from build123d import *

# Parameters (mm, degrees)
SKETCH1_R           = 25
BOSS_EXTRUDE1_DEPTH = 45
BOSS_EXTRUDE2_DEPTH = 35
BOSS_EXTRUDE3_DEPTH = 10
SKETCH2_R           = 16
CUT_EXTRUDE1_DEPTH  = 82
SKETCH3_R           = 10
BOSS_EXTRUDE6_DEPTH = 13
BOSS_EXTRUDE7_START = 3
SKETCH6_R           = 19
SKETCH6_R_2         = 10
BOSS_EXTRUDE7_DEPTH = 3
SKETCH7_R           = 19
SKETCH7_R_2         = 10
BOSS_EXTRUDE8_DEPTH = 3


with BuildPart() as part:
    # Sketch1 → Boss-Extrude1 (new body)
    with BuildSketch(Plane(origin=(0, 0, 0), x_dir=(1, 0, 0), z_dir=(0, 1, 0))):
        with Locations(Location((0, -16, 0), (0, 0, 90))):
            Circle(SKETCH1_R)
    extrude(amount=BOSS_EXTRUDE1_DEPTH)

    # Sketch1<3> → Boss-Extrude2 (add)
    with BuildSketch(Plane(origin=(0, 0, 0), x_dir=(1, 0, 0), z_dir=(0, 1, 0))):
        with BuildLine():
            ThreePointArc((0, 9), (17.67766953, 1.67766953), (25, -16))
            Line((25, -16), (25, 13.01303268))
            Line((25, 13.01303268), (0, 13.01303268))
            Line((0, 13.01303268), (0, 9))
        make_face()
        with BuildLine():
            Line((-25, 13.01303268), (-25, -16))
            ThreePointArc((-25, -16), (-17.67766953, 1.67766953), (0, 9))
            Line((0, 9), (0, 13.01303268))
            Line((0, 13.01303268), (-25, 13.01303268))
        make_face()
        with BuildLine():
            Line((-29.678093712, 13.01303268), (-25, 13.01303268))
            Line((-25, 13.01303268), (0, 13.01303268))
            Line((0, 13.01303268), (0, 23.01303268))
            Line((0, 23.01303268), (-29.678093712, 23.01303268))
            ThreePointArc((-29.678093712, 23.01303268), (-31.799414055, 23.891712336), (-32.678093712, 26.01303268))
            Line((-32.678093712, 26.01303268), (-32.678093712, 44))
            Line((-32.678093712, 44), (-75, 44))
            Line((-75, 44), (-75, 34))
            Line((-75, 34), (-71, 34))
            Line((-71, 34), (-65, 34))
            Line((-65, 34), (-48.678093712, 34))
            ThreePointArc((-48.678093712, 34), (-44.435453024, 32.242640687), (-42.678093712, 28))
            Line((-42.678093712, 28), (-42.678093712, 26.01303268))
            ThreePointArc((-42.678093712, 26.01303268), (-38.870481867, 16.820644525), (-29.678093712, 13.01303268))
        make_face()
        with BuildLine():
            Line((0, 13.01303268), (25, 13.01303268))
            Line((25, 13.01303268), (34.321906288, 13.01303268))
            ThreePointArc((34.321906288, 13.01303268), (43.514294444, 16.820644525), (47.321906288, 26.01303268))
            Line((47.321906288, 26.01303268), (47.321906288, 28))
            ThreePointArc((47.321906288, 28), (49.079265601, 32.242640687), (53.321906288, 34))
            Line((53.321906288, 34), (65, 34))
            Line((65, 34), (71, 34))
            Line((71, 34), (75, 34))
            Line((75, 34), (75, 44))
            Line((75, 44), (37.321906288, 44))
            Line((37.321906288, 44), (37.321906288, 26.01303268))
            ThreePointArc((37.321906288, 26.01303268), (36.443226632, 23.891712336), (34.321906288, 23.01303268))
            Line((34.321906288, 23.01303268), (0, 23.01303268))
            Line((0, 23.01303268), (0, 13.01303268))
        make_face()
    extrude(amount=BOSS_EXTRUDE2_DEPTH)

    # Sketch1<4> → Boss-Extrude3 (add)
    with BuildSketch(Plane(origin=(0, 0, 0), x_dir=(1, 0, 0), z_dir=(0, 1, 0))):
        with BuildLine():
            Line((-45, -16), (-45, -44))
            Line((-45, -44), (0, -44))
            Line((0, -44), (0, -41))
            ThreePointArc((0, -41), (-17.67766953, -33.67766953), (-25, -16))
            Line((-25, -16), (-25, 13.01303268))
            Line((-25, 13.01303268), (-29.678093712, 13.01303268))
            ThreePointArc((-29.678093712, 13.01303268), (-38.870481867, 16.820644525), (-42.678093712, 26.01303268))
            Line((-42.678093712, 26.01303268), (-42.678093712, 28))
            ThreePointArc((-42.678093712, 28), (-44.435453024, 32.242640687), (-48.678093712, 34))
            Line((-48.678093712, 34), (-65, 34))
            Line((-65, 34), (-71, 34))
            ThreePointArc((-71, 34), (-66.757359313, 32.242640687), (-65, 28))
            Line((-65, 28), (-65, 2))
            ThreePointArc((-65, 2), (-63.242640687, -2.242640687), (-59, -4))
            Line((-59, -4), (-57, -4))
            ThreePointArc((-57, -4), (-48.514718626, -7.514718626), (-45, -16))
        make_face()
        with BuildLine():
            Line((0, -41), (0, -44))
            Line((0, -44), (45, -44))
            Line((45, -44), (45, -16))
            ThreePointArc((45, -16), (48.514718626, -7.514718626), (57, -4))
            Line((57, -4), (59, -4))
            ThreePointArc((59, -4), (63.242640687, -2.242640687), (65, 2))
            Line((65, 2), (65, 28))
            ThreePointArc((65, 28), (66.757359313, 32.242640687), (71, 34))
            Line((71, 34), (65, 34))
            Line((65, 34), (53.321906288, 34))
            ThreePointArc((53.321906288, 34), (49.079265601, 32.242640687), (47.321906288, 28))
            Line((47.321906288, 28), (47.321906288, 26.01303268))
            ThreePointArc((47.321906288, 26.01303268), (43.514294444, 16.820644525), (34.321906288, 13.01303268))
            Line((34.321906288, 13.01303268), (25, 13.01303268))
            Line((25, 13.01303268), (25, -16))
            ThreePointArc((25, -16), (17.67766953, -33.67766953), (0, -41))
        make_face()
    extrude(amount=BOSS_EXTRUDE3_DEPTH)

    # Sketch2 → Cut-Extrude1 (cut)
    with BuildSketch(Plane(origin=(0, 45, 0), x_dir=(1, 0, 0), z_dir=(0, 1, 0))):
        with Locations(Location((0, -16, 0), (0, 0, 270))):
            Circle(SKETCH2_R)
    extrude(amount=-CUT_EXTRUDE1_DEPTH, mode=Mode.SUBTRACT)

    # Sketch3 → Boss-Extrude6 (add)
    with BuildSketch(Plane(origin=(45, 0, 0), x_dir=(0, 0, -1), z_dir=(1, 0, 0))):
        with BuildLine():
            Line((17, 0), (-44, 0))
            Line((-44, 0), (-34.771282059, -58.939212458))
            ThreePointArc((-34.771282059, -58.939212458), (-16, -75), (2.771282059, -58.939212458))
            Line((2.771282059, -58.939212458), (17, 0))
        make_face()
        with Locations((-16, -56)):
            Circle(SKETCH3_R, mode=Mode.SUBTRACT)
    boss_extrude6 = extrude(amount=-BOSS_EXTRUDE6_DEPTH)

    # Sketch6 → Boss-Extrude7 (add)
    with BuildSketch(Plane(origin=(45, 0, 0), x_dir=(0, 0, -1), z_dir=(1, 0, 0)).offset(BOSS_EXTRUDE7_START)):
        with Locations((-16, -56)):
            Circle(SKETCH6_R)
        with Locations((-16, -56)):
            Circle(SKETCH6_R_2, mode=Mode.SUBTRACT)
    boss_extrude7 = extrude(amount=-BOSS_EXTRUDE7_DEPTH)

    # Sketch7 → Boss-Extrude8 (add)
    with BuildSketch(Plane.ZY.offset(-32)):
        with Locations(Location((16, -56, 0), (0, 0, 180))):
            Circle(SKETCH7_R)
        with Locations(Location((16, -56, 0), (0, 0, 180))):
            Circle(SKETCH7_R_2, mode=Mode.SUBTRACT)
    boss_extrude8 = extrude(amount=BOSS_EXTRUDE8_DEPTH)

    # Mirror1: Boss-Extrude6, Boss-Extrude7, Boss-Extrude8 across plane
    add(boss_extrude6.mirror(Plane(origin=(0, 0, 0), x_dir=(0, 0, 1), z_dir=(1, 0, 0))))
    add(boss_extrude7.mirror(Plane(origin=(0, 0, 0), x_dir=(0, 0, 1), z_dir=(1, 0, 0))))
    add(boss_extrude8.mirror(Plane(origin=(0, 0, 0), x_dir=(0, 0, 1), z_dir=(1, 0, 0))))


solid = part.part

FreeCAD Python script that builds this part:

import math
import FreeCAD as App
import Part
import Sketcher

V = App.Vector
Q = App.Units.Quantity

doc = App.newDocument("Part")
body = doc.addObject("PartDesign::Body", "Body")

# Sketch on XZ plane
sketch1 = doc.addObject("Sketcher::SketchObject", "Sketch")
body.addObject(sketch1)
sketch1.AttachmentSupport = (doc.XZ_Plane, [""])
sketch1.MapMode = "FlatFace"
sketch1.addGeometry(Part.Circle(V(0, 16, 0), V(0, 0, 1), 25), False)
sketch1.addConstraint([
    Sketcher.Constraint("PointOnObject", 0, 3, -2),
    Sketcher.Constraint("Diameter", 0, Q("50 mm")),
    Sketcher.Constraint("DistanceY", -1, 1, 0, 3, Q("16 mm")),
])
pad1 = doc.addObject("PartDesign::Pad", "Pad")
body.addObject(pad1)
pad1.Profile = sketch1
pad1.Length = 45
pad1.Reversed = True

# Sketch on XZ plane
sketch2 = doc.addObject("Sketcher::SketchObject", "Sketch001")
body.addObject(sketch2)
sketch2.AttachmentSupport = (doc.XZ_Plane, [""])
sketch2.MapMode = "FlatFace"
sketch2.addGeometry([
    Part.ArcOfCircle(Part.Circle(V(0, 16, 0), V(0, 0, 1), 25), math.radians(-90), math.radians(0)),  # 0
    Part.LineSegment(V(25, 16, 0), V(25, -13.013033, 0)),  # 1
    Part.LineSegment(V(25, -13.013033, 0), V(34.321906, -13.013033, 0)),  # 2
    Part.ArcOfCircle(Part.Circle(V(34.321906, -26.013033, 0), V(0, 0, 1), 13), math.radians(0), math.radians(90)),  # 3
    Part.LineSegment(V(47.321906, -26.013033, 0), V(47.321906, -28, 0)),  # 4
    Part.ArcOfCircle(Part.Circle(V(53.321906, -28, 0), V(0, 0, 1), 6), math.radians(180), math.radians(270)),  # 5
    Part.LineSegment(V(53.321906, -34, 0), V(75, -34, 0)),  # 6
    Part.LineSegment(V(75, -34, 0), V(75, -44, 0)),  # 7
    Part.LineSegment(V(75, -44, 0), V(37.321906, -44, 0)),  # 8
    Part.LineSegment(V(37.321906, -44, 0), V(37.321906, -26.013033, 0)),  # 9
    Part.ArcOfCircle(Part.Circle(V(34.321906, -26.013033, 0), V(0, 0, 1), 3), math.radians(0), math.radians(90)),  # 10
    Part.LineSegment(V(34.321906, -23.013033, 0), V(-29.678094, -23.013033, 0)),  # 11
    Part.ArcOfCircle(Part.Circle(V(-29.678094, -26.013033, 0), V(0, 0, 1), 3), math.radians(90), math.radians(180)),  # 12
    Part.LineSegment(V(-32.678094, -26.013033, 0), V(-32.678094, -44, 0)),  # 13
    Part.LineSegment(V(-32.678094, -44, 0), V(-75, -44, 0)),  # 14
    Part.LineSegment(V(-75, -44, 0), V(-75, -34, 0)),  # 15
    Part.LineSegment(V(-75, -34, 0), V(-48.678094, -34, 0)),  # 16
    Part.ArcOfCircle(Part.Circle(V(-48.678094, -28, 0), V(0, 0, 1), 6), math.radians(-90), math.radians(0)),  # 17
    Part.LineSegment(V(-42.678094, -28, 0), V(-42.678094, -26.013033, 0)),  # 18
    Part.ArcOfCircle(Part.Circle(V(-29.678094, -26.013033, 0), V(0, 0, 1), 13), math.radians(90), math.radians(180)),  # 19
    Part.LineSegment(V(-29.678094, -13.013033, 0), V(-25, -13.013033, 0)),  # 20
    Part.LineSegment(V(-25, -13.013033, 0), V(-25, 16, 0)),  # 21
    Part.ArcOfCircle(Part.Circle(V(0, 16, 0), V(0, 0, 1), 25), math.radians(180), math.radians(270)),  # 22
], False)
sketch2.addConstraint([
    Sketcher.Constraint("Tangent", 0, 2, 1, 1),
    Sketcher.Constraint("Coincident", 1, 2, 2, 1),
    Sketcher.Constraint("Tangent", 2, 2, 3, 2),
    Sketcher.Constraint("Tangent", 3, 1, 4, 1),
    Sketcher.Constraint("Tangent", 4, 2, 5, 1),
    Sketcher.Constraint("Tangent", 5, 2, 6, 1),
    Sketcher.Constraint("Coincident", 6, 2, 7, 1),
    Sketcher.Constraint("Coincident", 7, 2, 8, 1),
    Sketcher.Constraint("Coincident", 8, 2, 9, 1),
    Sketcher.Constraint("Tangent", 9, 2, 10, 1),
    Sketcher.Constraint("Tangent", 10, 2, 11, 1),
    Sketcher.Constraint("Tangent", 11, 2, 12, 1),
    Sketcher.Constraint("Tangent", 12, 2, 13, 1),
    Sketcher.Constraint("Coincident", 13, 2, 14, 1),
    Sketcher.Constraint("Coincident", 14, 2, 15, 1),
    Sketcher.Constraint("Coincident", 15, 2, 16, 1),
    Sketcher.Constraint("Tangent", 16, 2, 17, 1),
    Sketcher.Constraint("Tangent", 17, 2, 18, 1),
    Sketcher.Constraint("Tangent", 18, 2, 19, 2),
    Sketcher.Constraint("Tangent", 19, 1, 20, 1),
    Sketcher.Constraint("Coincident", 20, 2, 21, 1),
    Sketcher.Constraint("Tangent", 21, 2, 22, 1),
    Sketcher.Constraint("Tangent", 22, 2, 0, 1),
    Sketcher.Constraint("Vertical", 1),
    Sketcher.Constraint("Horizontal", 2),
    Sketcher.Constraint("Vertical", 4),
    Sketcher.Constraint("Horizontal", 6),
    Sketcher.Constraint("Vertical", 7),
    Sketcher.Constraint("Horizontal", 8),
    Sketcher.Constraint("Vertical", 9),
    Sketcher.Constraint("Horizontal", 11),
    Sketcher.Constraint("Vertical", 13),
    Sketcher.Constraint("Horizontal", 14),
    Sketcher.Constraint("Vertical", 15),
    Sketcher.Constraint("Horizontal", 16),
    Sketcher.Constraint("Vertical", 18),
    Sketcher.Constraint("Horizontal", 20),
    Sketcher.Constraint("Vertical", 21),
    Sketcher.Constraint("Coincident", 10, 3, 3, 3),
    Sketcher.Constraint("Coincident", 19, 3, 12, 3),
    Sketcher.Constraint("Equal", 10, 12),
    Sketcher.Constraint("Equal", 5, 17),
    Sketcher.Constraint("Equal", 3, 19),
    Sketcher.Constraint("Equal", 0, 22),
    Sketcher.Constraint("Symmetric", 7, 2, 14, 2, -2),
    Sketcher.Constraint("PointOnObject", 0, 3, -2),
    Sketcher.Constraint("PointOnObject", 22, 2, -2),
    Sketcher.Constraint("Horizontal", 5, 3, 17, 3),
    Sketcher.Constraint("Radius", 0, Q("25 mm")),
    Sketcher.Constraint("Radius", 3, Q("13 mm")),
    Sketcher.Constraint("Radius", 5, Q("6 mm")),
    Sketcher.Constraint("Radius", 10, Q("3 mm")),
    Sketcher.Constraint("DistanceX", 11, 2, 11, 1, Q("64 mm")),
    Sketcher.Constraint("DistanceY", 7, 2, 7, 1, Q("10 mm")),
    Sketcher.Constraint("DistanceY", -1, 1, 0, 3, Q("16 mm")),
    Sketcher.Constraint("DistanceY", 5, 3, -1, 1, Q("28 mm")),
    Sketcher.Constraint("DistanceX", -1, 1, 6, 2, Q("75 mm")),
    Sketcher.Constraint("DistanceX", 2, 1, 2, 2, Q("9.321906 mm")),
    Sketcher.Constraint("DistanceY", 1, 2, 1, 1, Q("29.013033 mm")),
])
pad2 = doc.addObject("PartDesign::Pad", "Pad001")
body.addObject(pad2)
pad2.Profile = sketch2
pad2.Length = 35
pad2.Reversed = True

# Sketch on XZ plane
sketch3 = doc.addObject("Sketcher::SketchObject", "Sketch002")
body.addObject(sketch3)
sketch3.AttachmentSupport = (doc.XZ_Plane, [""])
sketch3.MapMode = "FlatFace"
sketch3.addGeometry([
    Part.LineSegment(V(-45, 16, 0), V(-45, 44, 0)),  # 0
    Part.LineSegment(V(-45, 44, 0), V(45, 44, 0)),  # 1
    Part.LineSegment(V(45, 44, 0), V(45, 16, 0)),  # 2
    Part.ArcOfCircle(Part.Circle(V(57, 16, 0), V(0, 0, 1), 12), math.radians(-180), math.radians(-90)),  # 3
    Part.LineSegment(V(57, 4, 0), V(59, 4, 0)),  # 4
    Part.ArcOfCircle(Part.Circle(V(59, -2, 0), V(0, 0, 1), 6), math.radians(0), math.radians(90)),  # 5
    Part.LineSegment(V(65, -2, 0), V(65, -28, 0)),  # 6
    Part.ArcOfCircle(Part.Circle(V(71, -28, 0), V(0, 0, 1), 6), math.radians(180), math.radians(270)),  # 7
    Part.LineSegment(V(71, -34, 0), V(53.321906, -34, 0)),  # 8
    Part.ArcOfCircle(Part.Circle(V(53.321906, -28, 0), V(0, 0, 1), 6), math.radians(180), math.radians(270)),  # 9
    Part.LineSegment(V(47.321906, -28, 0), V(47.321906, -26.013033, 0)),  # 10
    Part.ArcOfCircle(Part.Circle(V(34.321906, -26.013033, 0), V(0, 0, 1), 13), math.radians(0), math.radians(90)),  # 11
    Part.LineSegment(V(34.321906, -13.013033, 0), V(25, -13.013033, 0)),  # 12
    Part.LineSegment(V(25, -13.013033, 0), V(25, 16, 0)),  # 13
    Part.ArcOfCircle(Part.Circle(V(0, 16, 0), V(0, 0, 1), 25), math.radians(0), math.radians(90)),  # 14
    Part.ArcOfCircle(Part.Circle(V(0, 16, 0), V(0, 0, 1), 25), math.radians(90), math.radians(180)),  # 15
    Part.LineSegment(V(-25, 16, 0), V(-25, -13.013033, 0)),  # 16
    Part.LineSegment(V(-25, -13.013033, 0), V(-29.678094, -13.013033, 0)),  # 17
    Part.ArcOfCircle(Part.Circle(V(-29.678094, -26.013033, 0), V(0, 0, 1), 13), math.radians(90), math.radians(180)),  # 18
    Part.LineSegment(V(-42.678094, -26.013033, 0), V(-42.678094, -28, 0)),  # 19
    Part.ArcOfCircle(Part.Circle(V(-48.678094, -28, 0), V(0, 0, 1), 6), math.radians(-90), math.radians(0)),  # 20
    Part.LineSegment(V(-48.678094, -34, 0), V(-71, -34, 0)),  # 21
    Part.ArcOfCircle(Part.Circle(V(-71, -28, 0), V(0, 0, 1), 6), math.radians(-90), math.radians(0)),  # 22
    Part.LineSegment(V(-65, -28, 0), V(-65, -2, 0)),  # 23
    Part.ArcOfCircle(Part.Circle(V(-59, -2, 0), V(0, 0, 1), 6), math.radians(90), math.radians(180)),  # 24
    Part.LineSegment(V(-59, 4, 0), V(-57, 4, 0)),  # 25
    Part.ArcOfCircle(Part.Circle(V(-57, 16, 0), V(0, 0, 1), 12), math.radians(-90), math.radians(0)),  # 26
], False)
sketch3.addConstraint([
    Sketcher.Constraint("Coincident", 0, 2, 1, 1),
    Sketcher.Constraint("Coincident", 1, 2, 2, 1),
    Sketcher.Constraint("Tangent", 2, 2, 3, 1),
    Sketcher.Constraint("Tangent", 3, 2, 4, 1),
    Sketcher.Constraint("Tangent", 4, 2, 5, 2),
    Sketcher.Constraint("Tangent", 5, 1, 6, 1),
    Sketcher.Constraint("Tangent", 6, 2, 7, 1),
    Sketcher.Constraint("Tangent", 7, 2, 8, 1),
    Sketcher.Constraint("Tangent", 8, 2, 9, 2),
    Sketcher.Constraint("Tangent", 9, 1, 10, 1),
    Sketcher.Constraint("Tangent", 10, 2, 11, 1),
    Sketcher.Constraint("Tangent", 11, 2, 12, 1),
    Sketcher.Constraint("Coincident", 12, 2, 13, 1),
    Sketcher.Constraint("Tangent", 13, 2, 14, 1),
    Sketcher.Constraint("Tangent", 14, 2, 15, 1),
    Sketcher.Constraint("Tangent", 15, 2, 16, 1),
    Sketcher.Constraint("Coincident", 16, 2, 17, 1),
    Sketcher.Constraint("Tangent", 17, 2, 18, 1),
    Sketcher.Constraint("Tangent", 18, 2, 19, 1),
    Sketcher.Constraint("Tangent", 19, 2, 20, 2),
    Sketcher.Constraint("Tangent", 20, 1, 21, 1),
    Sketcher.Constraint("Tangent", 21, 2, 22, 1),
    Sketcher.Constraint("Tangent", 22, 2, 23, 1),
    Sketcher.Constraint("Tangent", 23, 2, 24, 2),
    Sketcher.Constraint("Tangent", 24, 1, 25, 1),
    Sketcher.Constraint("Tangent", 25, 2, 26, 1),
    Sketcher.Constraint("Tangent", 26, 2, 0, 1),
    Sketcher.Constraint("Vertical", 0),
    Sketcher.Constraint("Horizontal", 1),
    Sketcher.Constraint("Vertical", 2),
    Sketcher.Constraint("Horizontal", 4),
    Sketcher.Constraint("Vertical", 6),
    Sketcher.Constraint("Horizontal", 8),
    Sketcher.Constraint("Vertical", 10),
    Sketcher.Constraint("Horizontal", 12),
    Sketcher.Constraint("Vertical", 13),
    Sketcher.Constraint("Vertical", 16),
    Sketcher.Constraint("Horizontal", 17),
    Sketcher.Constraint("Vertical", 19),
    Sketcher.Constraint("Horizontal", 21),
    Sketcher.Constraint("Vertical", 23),
    Sketcher.Constraint("Horizontal", 25),
    Sketcher.Constraint("Equal", 5, 7),
    Sketcher.Constraint("Equal", 7, 9),
    Sketcher.Constraint("Equal", 14, 15),
    Sketcher.Constraint("Equal", 11, 18),
    Sketcher.Constraint("Equal", 9, 20),
    Sketcher.Constraint("Equal", 20, 22),
    Sketcher.Constraint("Equal", 22, 24),
    Sketcher.Constraint("Equal", 3, 26),
    Sketcher.Constraint("Symmetric", 7, 3, 22, 3, -2),
    Sketcher.Constraint("Symmetric", 3, 3, 26, 3, -2),
    Sketcher.Constraint("Symmetric", 12, 2, 16, 2, -2),
    Sketcher.Constraint("PointOnObject", 14, 2, -2),
    Sketcher.Constraint("Horizontal", 3, 3, 14, 3),
    Sketcher.Constraint("Radius", 3, Q("12 mm")),
    Sketcher.Constraint("Radius", 5, Q("6 mm")),
    Sketcher.Constraint("Radius", 11, Q("13 mm")),
    Sketcher.Constraint("Radius", 14, Q("25 mm")),
    Sketcher.Constraint("DistanceX", 1, 1, 1, 2, Q("90 mm")),
    Sketcher.Constraint("DistanceX", 4, 1, 4, 2, Q("2 mm")),
    Sketcher.Constraint("DistanceY", 0, 1, 0, 2, Q("28 mm")),
    Sketcher.Constraint("DistanceY", 6, 2, 6, 1, Q("26 mm")),
    Sketcher.Constraint("DistanceY", -1, 1, 3, 3, Q("16 mm")),
    Sketcher.Constraint("DistanceX", 18, 3, 11, 3, Q("64 mm")),
    Sketcher.Constraint("DistanceX", 8, 2, 8, 1, Q("17.678094 mm")),
    Sketcher.Constraint("DistanceY", 10, 1, 10, 2, Q("1.986967 mm")),
])
pad3 = doc.addObject("PartDesign::Pad", "Pad002")
body.addObject(pad3)
pad3.Profile = sketch3
pad3.Length = 10
pad3.Reversed = True

# Sketch on XZ plane
sketch4 = doc.addObject("Sketcher::SketchObject", "Sketch003")
body.addObject(sketch4)
sketch4.AttachmentSupport = (doc.XZ_Plane, [""])
sketch4.MapMode = "FlatFace"
sketch4.AttachmentOffset = App.Placement(V(0, 0, -45), App.Rotation())
sketch4.addGeometry(Part.Circle(V(0, 16, 0), V(0, 0, 1), 16), False)
sketch4.addConstraint([
    Sketcher.Constraint("PointOnObject", 0, 3, -2),
    Sketcher.Constraint("Diameter", 0, Q("32 mm")),
    Sketcher.Constraint("DistanceY", -1, 1, 0, 3, Q("16 mm")),
])
pocket1 = doc.addObject("PartDesign::Pocket", "Pocket")
body.addObject(pocket1)
pocket1.Profile = sketch4
pocket1.Length = 82
pocket1.Reversed = True

# Sketch on YZ plane
sketch5 = doc.addObject("Sketcher::SketchObject", "Sketch004")
body.addObject(sketch5)
sketch5.AttachmentSupport = (doc.YZ_Plane, [""])
sketch5.MapMode = "FlatFace"
sketch5.AttachmentOffset = App.Placement(V(0, 0, 45), App.Rotation())
sketch5.addGeometry([
    Part.LineSegment(V(0, -17, 0), V(0, 44, 0)),  # 0
    Part.LineSegment(V(0, 44, 0), V(-58.939212, 34.771282, 0)),  # 1
    Part.ArcOfCircle(Part.Circle(V(-56, 16, 0), V(0, 0, 1), 19), math.radians(98.89913), math.radians(261.10087)),  # 2
    Part.LineSegment(V(-58.939212, -2.771282, 0), V(0, -17, 0)),  # 3
    Part.Circle(V(-56, 16, 0), V(0, 0, 1), 10),  # 4
], False)
sketch5.addConstraint([
    Sketcher.Constraint("Coincident", 0, 2, 1, 1),
    Sketcher.Constraint("Tangent", 1, 2, 2, 1),
    Sketcher.Constraint("Coincident", 2, 2, 3, 1),
    Sketcher.Constraint("Coincident", 3, 2, 0, 1),
    Sketcher.Constraint("Vertical", 0),
    Sketcher.Constraint("Coincident", 4, 3, 2, 3),
    Sketcher.Constraint("PointOnObject", 0, 2, -2),
    Sketcher.Constraint("Vertical", 1, 2, 2, 2),
    Sketcher.Constraint("Diameter", 4, Q("20 mm")),
    Sketcher.Constraint("Radius", 2, Q("19 mm")),
    Sketcher.Constraint("DistanceY", 0, 1, 0, 2, Q("61 mm")),
    Sketcher.Constraint("DistanceX", 2, 3, -1, 1, Q("56 mm")),
    Sketcher.Constraint("DistanceY", -1, 1, 2, 3, Q("16 mm")),
    Sketcher.Constraint("DistanceY", -1, 1, 0, 2, Q("44 mm")),
])
pad4 = doc.addObject("PartDesign::Pad", "Pad003")
body.addObject(pad4)
pad4.Profile = sketch5
pad4.Length = 13
pad4.Reversed = True

# Sketch on YZ plane
sketch6 = doc.addObject("Sketcher::SketchObject", "Sketch005")
body.addObject(sketch6)
sketch6.AttachmentSupport = (doc.YZ_Plane, [""])
sketch6.MapMode = "FlatFace"
sketch6.AttachmentOffset = App.Placement(V(0, 0, 48), App.Rotation())
sketch6.addGeometry([
    Part.Circle(V(-56, 16, 0), V(0, 0, 1), 19),
    Part.Circle(V(-56, 16, 0), V(0, 0, 1), 10),
], False)
sketch6.addConstraint([
    Sketcher.Constraint("Coincident", 1, 3, 0, 3),
    Sketcher.Constraint("Diameter", 0, Q("38 mm")),
    Sketcher.Constraint("Diameter", 1, Q("20 mm")),
    Sketcher.Constraint("DistanceX", 0, 3, -1, 1, Q("56 mm")),
    Sketcher.Constraint("DistanceY", -1, 1, 0, 3, Q("16 mm")),
])
pad5 = doc.addObject("PartDesign::Pad", "Pad004")
body.addObject(pad5)
pad5.Profile = sketch6
pad5.Length = 3
pad5.Reversed = True

# Sketch on YZ plane
sketch7 = doc.addObject("Sketcher::SketchObject", "Sketch006")
body.addObject(sketch7)
sketch7.AttachmentSupport = (doc.YZ_Plane, [""])
sketch7.MapMode = "FlatFace"
sketch7.AttachmentOffset = App.Placement(V(0, 0, 32), App.Rotation())
sketch7.addGeometry([
    Part.Circle(V(-56, 16, 0), V(0, 0, 1), 19),
    Part.Circle(V(-56, 16, 0), V(0, 0, 1), 10),
], False)
sketch7.addConstraint([
    Sketcher.Constraint("Coincident", 1, 3, 0, 3),
    Sketcher.Constraint("Diameter", 0, Q("38 mm")),
    Sketcher.Constraint("Diameter", 1, Q("20 mm")),
    Sketcher.Constraint("DistanceX", 0, 3, -1, 1, Q("56 mm")),
    Sketcher.Constraint("DistanceY", -1, 1, 0, 3, Q("16 mm")),
])
pad6 = doc.addObject("PartDesign::Pad", "Pad005")
body.addObject(pad6)
pad6.Profile = sketch7
pad6.Length = 3
pad6.Reversed = True
doc.recompute()

mirrored = doc.addObject("PartDesign::Mirrored", "Mirrored")
body.addObject(mirrored)
mirrored.Originals = [pad4, pad5, pad6]
mirrored.MirrorPlane = (doc.YZ_Plane, [""])
body.Tip = mirrored

doc.recompute()
